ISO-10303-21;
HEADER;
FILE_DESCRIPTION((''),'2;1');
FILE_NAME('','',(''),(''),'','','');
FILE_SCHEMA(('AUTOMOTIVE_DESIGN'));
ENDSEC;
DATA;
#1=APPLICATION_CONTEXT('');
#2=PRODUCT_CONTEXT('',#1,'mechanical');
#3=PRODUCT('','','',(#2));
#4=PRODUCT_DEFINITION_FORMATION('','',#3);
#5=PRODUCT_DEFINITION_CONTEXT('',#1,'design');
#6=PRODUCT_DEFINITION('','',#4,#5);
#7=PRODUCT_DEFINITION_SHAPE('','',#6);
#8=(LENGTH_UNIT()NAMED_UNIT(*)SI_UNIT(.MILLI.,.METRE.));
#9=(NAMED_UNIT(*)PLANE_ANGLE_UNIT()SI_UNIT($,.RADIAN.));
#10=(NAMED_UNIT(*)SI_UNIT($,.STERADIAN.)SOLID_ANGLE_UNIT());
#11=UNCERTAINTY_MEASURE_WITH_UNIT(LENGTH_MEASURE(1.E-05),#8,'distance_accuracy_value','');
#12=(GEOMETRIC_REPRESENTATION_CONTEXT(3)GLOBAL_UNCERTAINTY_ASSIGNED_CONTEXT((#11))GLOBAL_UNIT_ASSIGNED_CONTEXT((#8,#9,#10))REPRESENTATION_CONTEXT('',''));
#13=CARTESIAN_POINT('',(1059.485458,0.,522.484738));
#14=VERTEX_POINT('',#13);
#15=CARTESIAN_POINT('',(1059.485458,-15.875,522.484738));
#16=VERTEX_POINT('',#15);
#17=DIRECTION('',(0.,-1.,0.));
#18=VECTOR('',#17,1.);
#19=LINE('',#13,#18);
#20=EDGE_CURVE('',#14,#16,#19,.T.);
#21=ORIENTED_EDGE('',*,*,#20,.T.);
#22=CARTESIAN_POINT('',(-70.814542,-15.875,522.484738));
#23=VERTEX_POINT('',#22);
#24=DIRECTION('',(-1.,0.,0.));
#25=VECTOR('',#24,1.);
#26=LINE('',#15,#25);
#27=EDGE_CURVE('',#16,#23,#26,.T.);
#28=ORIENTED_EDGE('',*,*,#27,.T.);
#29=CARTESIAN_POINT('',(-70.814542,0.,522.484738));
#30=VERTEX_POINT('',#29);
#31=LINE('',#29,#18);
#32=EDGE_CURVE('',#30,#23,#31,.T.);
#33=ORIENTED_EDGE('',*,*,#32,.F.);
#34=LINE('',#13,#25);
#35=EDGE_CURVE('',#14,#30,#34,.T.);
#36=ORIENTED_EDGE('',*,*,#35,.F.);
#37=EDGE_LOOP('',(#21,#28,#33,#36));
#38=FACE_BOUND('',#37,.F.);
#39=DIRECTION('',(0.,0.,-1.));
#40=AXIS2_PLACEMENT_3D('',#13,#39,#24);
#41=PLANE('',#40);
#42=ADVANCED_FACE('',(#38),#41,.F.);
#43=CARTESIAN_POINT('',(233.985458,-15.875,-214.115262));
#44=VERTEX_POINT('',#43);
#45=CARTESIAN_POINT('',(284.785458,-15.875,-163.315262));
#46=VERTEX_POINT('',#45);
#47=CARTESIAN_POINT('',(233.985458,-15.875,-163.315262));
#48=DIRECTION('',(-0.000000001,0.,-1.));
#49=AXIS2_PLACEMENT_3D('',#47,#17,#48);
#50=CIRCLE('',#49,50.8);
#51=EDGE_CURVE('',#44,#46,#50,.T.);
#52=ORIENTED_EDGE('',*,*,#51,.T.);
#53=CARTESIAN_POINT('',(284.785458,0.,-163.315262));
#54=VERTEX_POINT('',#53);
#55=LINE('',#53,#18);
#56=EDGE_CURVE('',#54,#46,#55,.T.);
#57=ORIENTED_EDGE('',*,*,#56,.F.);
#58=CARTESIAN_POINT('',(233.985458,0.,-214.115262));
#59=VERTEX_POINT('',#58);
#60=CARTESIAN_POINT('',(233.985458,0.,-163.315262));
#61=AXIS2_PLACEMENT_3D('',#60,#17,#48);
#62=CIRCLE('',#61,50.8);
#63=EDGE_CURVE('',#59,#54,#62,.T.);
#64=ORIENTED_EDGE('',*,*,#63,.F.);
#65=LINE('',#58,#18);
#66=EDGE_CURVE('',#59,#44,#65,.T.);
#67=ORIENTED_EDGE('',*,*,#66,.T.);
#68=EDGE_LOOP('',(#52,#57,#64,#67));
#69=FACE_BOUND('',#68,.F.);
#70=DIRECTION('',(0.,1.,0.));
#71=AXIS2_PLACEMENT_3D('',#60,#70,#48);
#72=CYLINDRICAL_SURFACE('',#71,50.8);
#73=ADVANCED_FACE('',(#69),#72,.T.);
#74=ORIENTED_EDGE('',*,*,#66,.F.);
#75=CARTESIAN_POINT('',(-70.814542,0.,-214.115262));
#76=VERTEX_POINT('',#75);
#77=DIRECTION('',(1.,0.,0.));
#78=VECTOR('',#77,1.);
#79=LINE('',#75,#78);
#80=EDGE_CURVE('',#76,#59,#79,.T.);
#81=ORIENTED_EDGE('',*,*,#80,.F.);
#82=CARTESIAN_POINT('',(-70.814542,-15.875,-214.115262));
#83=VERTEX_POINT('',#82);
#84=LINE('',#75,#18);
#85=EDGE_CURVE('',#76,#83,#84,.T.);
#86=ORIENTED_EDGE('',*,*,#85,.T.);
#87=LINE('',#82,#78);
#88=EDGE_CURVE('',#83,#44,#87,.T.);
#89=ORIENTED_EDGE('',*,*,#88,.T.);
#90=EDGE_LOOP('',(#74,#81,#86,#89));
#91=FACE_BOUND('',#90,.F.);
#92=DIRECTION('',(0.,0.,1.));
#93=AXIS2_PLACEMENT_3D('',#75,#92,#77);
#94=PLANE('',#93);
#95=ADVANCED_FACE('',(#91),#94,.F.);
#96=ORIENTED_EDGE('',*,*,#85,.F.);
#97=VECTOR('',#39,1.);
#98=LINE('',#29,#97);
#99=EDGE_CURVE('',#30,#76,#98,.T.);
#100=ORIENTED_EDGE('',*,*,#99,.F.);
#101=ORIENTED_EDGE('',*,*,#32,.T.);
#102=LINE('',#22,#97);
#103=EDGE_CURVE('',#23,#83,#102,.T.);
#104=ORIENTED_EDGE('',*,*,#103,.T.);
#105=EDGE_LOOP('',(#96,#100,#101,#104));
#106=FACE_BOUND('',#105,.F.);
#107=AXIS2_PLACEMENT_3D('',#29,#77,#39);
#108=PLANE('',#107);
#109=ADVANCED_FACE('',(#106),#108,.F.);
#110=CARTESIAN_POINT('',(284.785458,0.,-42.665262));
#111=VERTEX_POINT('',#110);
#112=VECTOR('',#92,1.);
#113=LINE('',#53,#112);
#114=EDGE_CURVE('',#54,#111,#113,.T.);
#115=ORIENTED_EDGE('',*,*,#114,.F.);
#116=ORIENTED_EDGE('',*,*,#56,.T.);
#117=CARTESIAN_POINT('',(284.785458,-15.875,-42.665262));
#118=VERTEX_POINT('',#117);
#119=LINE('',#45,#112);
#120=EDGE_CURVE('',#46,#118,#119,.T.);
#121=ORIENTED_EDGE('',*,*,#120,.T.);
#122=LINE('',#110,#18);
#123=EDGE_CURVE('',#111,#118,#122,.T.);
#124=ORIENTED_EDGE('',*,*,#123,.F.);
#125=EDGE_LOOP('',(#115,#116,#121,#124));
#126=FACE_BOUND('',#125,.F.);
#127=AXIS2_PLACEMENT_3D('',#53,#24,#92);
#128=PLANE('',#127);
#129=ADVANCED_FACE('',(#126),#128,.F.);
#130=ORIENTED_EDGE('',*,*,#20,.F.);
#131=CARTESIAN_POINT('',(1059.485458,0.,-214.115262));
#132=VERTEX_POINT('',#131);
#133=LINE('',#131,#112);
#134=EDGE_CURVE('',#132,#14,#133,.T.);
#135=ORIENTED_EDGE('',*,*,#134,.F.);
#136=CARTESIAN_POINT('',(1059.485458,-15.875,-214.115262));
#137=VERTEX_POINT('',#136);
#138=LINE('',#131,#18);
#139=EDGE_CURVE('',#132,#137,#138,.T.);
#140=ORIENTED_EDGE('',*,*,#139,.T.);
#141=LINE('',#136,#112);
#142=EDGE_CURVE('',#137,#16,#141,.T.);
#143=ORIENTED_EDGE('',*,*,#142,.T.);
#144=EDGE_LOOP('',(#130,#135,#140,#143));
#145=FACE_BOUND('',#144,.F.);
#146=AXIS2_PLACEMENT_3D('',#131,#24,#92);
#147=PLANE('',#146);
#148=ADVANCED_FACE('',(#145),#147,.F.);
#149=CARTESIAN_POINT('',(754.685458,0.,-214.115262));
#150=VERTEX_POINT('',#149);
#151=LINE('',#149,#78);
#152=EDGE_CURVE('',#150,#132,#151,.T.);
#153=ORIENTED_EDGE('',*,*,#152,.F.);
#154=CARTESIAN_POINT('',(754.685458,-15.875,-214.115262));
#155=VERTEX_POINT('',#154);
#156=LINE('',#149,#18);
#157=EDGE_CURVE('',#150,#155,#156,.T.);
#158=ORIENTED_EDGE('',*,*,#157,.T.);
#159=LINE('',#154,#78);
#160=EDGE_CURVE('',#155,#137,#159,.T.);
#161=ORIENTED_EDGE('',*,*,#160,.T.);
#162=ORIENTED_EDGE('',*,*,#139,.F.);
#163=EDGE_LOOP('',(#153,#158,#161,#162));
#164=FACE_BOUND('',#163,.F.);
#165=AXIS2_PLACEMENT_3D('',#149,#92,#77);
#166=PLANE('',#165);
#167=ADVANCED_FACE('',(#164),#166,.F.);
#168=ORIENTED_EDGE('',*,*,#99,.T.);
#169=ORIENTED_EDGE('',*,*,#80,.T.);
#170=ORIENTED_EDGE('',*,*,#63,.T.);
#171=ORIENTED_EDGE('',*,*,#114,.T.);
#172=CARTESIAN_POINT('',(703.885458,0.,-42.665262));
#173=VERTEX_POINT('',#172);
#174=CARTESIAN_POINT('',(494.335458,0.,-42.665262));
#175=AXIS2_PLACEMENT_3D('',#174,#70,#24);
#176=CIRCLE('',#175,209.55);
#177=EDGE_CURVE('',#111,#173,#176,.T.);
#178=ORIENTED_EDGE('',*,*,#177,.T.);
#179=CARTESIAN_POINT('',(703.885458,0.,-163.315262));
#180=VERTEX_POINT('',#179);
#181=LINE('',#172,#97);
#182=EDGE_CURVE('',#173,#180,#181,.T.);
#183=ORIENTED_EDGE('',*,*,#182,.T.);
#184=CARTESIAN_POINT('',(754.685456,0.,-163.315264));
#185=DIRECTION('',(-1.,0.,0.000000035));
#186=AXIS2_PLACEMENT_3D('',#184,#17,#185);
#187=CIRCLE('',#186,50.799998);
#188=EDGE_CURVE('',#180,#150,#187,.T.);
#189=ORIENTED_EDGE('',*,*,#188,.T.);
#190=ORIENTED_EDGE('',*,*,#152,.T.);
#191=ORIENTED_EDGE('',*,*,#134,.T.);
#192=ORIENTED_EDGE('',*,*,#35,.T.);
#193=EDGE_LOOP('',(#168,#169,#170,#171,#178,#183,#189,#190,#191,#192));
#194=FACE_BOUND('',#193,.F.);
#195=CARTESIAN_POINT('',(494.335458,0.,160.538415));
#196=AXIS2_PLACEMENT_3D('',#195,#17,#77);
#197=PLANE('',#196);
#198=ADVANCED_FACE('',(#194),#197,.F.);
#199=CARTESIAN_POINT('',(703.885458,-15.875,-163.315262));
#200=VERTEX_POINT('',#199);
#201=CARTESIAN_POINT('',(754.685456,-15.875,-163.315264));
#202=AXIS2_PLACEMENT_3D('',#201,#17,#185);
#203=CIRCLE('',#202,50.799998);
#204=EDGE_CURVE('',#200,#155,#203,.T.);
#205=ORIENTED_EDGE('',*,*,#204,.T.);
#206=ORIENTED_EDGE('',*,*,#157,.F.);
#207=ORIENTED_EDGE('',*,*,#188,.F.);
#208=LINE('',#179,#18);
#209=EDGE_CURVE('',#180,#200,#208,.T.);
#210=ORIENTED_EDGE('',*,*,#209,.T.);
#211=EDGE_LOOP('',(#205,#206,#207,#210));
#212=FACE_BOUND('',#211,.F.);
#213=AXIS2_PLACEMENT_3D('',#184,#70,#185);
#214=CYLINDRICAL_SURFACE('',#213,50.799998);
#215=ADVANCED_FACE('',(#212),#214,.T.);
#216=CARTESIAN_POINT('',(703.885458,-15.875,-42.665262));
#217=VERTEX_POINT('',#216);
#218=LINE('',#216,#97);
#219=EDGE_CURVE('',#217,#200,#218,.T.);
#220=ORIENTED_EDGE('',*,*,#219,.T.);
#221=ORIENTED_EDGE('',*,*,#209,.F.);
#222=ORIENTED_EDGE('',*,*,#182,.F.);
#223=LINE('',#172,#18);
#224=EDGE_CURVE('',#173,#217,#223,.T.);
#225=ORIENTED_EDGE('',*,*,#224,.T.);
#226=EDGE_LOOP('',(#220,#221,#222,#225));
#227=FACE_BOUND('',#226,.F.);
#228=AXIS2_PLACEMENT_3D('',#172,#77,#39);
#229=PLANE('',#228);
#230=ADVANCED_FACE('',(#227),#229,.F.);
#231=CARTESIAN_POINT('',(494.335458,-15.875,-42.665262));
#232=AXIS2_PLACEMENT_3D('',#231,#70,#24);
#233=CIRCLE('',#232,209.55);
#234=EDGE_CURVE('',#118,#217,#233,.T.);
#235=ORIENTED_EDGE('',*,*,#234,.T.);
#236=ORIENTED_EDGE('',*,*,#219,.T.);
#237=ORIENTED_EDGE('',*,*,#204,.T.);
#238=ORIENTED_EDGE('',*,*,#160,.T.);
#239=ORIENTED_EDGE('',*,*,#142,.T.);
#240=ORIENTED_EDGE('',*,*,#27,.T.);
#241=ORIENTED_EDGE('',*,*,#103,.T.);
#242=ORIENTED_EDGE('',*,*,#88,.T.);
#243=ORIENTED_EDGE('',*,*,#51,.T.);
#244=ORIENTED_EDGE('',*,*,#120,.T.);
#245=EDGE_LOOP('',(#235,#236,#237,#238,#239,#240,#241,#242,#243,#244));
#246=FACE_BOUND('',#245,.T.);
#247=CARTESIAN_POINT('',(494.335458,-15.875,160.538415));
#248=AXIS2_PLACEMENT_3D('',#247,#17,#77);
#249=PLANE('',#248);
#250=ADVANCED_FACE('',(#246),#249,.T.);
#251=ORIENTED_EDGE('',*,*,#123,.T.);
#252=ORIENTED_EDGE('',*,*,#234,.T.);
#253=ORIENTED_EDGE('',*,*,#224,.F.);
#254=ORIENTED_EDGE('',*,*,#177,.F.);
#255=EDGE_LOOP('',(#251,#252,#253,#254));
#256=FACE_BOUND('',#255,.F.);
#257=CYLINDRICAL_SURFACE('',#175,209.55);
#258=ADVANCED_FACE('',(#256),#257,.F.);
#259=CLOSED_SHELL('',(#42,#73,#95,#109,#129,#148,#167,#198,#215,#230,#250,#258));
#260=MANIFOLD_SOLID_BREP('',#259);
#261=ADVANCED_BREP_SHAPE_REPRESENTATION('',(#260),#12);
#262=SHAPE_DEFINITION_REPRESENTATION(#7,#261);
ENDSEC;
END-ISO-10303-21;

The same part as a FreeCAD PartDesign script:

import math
import FreeCAD as App
import Part
import Sketcher
Q = App.Units.Quantity

doc = App.newDocument("Part")
body = doc.addObject("PartDesign::Body", "Body")

# Sketch on XZ plane
sketch1 = body.newObject("Sketcher::SketchObject", "Sketch")
sketch1.AttachmentSupport = (doc.getObject("XZ_Plane"), [""])
sketch1.MapMode = "FlatFace"
sketch1.addGeometry([
    Part.LineSegment(App.Vector(1059, 522, 0), App.Vector(-71, 522, 0)),  # 0
    Part.LineSegment(App.Vector(-71, 522, 0), App.Vector(-71, -214, 0)),  # 1
    Part.LineSegment(App.Vector(-71, -214, 0), App.Vector(234, -214, 0)),  # 2
    Part.ArcOfCircle(Part.Circle(App.Vector(234, -163, 0), App.Vector(0, 0, 1), 51), math.radians(-90), math.radians(0)),  # 3
    Part.LineSegment(App.Vector(285, -163, 0), App.Vector(285, -43, 0)),  # 4
    Part.ArcOfCircle(Part.Circle(App.Vector(494, -43, 0), App.Vector(0, 0, 1), 210), math.radians(0), math.radians(180)),  # 5
    Part.LineSegment(App.Vector(704, -43, 0), App.Vector(704, -163, 0)),  # 6
    Part.ArcOfCircle(Part.Circle(App.Vector(755, -163, 0), App.Vector(0, 0, 1), 51), math.radians(180), math.radians(270)),  # 7
    Part.LineSegment(App.Vector(755, -214, 0), App.Vector(1059, -214, 0)),  # 8
    Part.LineSegment(App.Vector(1059, -214, 0), App.Vector(1059, 522, 0)),  # 9
], False)
sketch1.addConstraint([
    Sketcher.Constraint("Coincident", 0, 2, 1, 1),
    Sketcher.Constraint("Coincident", 1, 2, 2, 1),
    Sketcher.Constraint("Tangent", 2, 2, 3, 1),
    Sketcher.Constraint("Tangent", 3, 2, 4, 1),
    Sketcher.Constraint("Tangent", 4, 2, 5, 2),
    Sketcher.Constraint("Tangent", 5, 1, 6, 1),
    Sketcher.Constraint("Tangent", 6, 2, 7, 1),
    Sketcher.Constraint("Tangent", 7, 2, 8, 1),
    Sketcher.Constraint("Coincident", 8, 2, 9, 1),
    Sketcher.Constraint("Coincident", 9, 2, 0, 1),
    Sketcher.Constraint("Horizontal", 0),
    Sketcher.Constraint("Vertical", 1),
    Sketcher.Constraint("Horizontal", 2),
    Sketcher.Constraint("Vertical", 4),
    Sketcher.Constraint("Vertical", 6),
    Sketcher.Constraint("Horizontal", 8),
    Sketcher.Constraint("Vertical", 9),
    Sketcher.Constraint("Equal", 3, 7),
    Sketcher.Constraint("Horizontal", 3, 3, 7, 3),
    Sketcher.Constraint("Equal", 2, 8),
    Sketcher.Constraint("Radius", 3, Q("2 in")),
    Sketcher.Constraint("DistanceX", 2, 1, 2, 2, Q("12 in")),
    Sketcher.Constraint("DistanceY", 1, 2, 1, 1, Q("29 in")),
    Sketcher.Constraint("Radius", 5, Q("8.25 in")),
    Sketcher.Constraint("DistanceY", 4, 1, 4, 2, Q("4.75 in")),
    Sketcher.Constraint("DistanceX", -1, 1, 3, 3, 233.985458),
    Sketcher.Constraint("DistanceY", 5, 3, -1, 1, 42.665262),
])
pad1 = body.newObject("PartDesign::Pad", "Pad")
pad1.Profile = sketch1
pad1.Length = Q("0.625 in")

doc.recompute()
